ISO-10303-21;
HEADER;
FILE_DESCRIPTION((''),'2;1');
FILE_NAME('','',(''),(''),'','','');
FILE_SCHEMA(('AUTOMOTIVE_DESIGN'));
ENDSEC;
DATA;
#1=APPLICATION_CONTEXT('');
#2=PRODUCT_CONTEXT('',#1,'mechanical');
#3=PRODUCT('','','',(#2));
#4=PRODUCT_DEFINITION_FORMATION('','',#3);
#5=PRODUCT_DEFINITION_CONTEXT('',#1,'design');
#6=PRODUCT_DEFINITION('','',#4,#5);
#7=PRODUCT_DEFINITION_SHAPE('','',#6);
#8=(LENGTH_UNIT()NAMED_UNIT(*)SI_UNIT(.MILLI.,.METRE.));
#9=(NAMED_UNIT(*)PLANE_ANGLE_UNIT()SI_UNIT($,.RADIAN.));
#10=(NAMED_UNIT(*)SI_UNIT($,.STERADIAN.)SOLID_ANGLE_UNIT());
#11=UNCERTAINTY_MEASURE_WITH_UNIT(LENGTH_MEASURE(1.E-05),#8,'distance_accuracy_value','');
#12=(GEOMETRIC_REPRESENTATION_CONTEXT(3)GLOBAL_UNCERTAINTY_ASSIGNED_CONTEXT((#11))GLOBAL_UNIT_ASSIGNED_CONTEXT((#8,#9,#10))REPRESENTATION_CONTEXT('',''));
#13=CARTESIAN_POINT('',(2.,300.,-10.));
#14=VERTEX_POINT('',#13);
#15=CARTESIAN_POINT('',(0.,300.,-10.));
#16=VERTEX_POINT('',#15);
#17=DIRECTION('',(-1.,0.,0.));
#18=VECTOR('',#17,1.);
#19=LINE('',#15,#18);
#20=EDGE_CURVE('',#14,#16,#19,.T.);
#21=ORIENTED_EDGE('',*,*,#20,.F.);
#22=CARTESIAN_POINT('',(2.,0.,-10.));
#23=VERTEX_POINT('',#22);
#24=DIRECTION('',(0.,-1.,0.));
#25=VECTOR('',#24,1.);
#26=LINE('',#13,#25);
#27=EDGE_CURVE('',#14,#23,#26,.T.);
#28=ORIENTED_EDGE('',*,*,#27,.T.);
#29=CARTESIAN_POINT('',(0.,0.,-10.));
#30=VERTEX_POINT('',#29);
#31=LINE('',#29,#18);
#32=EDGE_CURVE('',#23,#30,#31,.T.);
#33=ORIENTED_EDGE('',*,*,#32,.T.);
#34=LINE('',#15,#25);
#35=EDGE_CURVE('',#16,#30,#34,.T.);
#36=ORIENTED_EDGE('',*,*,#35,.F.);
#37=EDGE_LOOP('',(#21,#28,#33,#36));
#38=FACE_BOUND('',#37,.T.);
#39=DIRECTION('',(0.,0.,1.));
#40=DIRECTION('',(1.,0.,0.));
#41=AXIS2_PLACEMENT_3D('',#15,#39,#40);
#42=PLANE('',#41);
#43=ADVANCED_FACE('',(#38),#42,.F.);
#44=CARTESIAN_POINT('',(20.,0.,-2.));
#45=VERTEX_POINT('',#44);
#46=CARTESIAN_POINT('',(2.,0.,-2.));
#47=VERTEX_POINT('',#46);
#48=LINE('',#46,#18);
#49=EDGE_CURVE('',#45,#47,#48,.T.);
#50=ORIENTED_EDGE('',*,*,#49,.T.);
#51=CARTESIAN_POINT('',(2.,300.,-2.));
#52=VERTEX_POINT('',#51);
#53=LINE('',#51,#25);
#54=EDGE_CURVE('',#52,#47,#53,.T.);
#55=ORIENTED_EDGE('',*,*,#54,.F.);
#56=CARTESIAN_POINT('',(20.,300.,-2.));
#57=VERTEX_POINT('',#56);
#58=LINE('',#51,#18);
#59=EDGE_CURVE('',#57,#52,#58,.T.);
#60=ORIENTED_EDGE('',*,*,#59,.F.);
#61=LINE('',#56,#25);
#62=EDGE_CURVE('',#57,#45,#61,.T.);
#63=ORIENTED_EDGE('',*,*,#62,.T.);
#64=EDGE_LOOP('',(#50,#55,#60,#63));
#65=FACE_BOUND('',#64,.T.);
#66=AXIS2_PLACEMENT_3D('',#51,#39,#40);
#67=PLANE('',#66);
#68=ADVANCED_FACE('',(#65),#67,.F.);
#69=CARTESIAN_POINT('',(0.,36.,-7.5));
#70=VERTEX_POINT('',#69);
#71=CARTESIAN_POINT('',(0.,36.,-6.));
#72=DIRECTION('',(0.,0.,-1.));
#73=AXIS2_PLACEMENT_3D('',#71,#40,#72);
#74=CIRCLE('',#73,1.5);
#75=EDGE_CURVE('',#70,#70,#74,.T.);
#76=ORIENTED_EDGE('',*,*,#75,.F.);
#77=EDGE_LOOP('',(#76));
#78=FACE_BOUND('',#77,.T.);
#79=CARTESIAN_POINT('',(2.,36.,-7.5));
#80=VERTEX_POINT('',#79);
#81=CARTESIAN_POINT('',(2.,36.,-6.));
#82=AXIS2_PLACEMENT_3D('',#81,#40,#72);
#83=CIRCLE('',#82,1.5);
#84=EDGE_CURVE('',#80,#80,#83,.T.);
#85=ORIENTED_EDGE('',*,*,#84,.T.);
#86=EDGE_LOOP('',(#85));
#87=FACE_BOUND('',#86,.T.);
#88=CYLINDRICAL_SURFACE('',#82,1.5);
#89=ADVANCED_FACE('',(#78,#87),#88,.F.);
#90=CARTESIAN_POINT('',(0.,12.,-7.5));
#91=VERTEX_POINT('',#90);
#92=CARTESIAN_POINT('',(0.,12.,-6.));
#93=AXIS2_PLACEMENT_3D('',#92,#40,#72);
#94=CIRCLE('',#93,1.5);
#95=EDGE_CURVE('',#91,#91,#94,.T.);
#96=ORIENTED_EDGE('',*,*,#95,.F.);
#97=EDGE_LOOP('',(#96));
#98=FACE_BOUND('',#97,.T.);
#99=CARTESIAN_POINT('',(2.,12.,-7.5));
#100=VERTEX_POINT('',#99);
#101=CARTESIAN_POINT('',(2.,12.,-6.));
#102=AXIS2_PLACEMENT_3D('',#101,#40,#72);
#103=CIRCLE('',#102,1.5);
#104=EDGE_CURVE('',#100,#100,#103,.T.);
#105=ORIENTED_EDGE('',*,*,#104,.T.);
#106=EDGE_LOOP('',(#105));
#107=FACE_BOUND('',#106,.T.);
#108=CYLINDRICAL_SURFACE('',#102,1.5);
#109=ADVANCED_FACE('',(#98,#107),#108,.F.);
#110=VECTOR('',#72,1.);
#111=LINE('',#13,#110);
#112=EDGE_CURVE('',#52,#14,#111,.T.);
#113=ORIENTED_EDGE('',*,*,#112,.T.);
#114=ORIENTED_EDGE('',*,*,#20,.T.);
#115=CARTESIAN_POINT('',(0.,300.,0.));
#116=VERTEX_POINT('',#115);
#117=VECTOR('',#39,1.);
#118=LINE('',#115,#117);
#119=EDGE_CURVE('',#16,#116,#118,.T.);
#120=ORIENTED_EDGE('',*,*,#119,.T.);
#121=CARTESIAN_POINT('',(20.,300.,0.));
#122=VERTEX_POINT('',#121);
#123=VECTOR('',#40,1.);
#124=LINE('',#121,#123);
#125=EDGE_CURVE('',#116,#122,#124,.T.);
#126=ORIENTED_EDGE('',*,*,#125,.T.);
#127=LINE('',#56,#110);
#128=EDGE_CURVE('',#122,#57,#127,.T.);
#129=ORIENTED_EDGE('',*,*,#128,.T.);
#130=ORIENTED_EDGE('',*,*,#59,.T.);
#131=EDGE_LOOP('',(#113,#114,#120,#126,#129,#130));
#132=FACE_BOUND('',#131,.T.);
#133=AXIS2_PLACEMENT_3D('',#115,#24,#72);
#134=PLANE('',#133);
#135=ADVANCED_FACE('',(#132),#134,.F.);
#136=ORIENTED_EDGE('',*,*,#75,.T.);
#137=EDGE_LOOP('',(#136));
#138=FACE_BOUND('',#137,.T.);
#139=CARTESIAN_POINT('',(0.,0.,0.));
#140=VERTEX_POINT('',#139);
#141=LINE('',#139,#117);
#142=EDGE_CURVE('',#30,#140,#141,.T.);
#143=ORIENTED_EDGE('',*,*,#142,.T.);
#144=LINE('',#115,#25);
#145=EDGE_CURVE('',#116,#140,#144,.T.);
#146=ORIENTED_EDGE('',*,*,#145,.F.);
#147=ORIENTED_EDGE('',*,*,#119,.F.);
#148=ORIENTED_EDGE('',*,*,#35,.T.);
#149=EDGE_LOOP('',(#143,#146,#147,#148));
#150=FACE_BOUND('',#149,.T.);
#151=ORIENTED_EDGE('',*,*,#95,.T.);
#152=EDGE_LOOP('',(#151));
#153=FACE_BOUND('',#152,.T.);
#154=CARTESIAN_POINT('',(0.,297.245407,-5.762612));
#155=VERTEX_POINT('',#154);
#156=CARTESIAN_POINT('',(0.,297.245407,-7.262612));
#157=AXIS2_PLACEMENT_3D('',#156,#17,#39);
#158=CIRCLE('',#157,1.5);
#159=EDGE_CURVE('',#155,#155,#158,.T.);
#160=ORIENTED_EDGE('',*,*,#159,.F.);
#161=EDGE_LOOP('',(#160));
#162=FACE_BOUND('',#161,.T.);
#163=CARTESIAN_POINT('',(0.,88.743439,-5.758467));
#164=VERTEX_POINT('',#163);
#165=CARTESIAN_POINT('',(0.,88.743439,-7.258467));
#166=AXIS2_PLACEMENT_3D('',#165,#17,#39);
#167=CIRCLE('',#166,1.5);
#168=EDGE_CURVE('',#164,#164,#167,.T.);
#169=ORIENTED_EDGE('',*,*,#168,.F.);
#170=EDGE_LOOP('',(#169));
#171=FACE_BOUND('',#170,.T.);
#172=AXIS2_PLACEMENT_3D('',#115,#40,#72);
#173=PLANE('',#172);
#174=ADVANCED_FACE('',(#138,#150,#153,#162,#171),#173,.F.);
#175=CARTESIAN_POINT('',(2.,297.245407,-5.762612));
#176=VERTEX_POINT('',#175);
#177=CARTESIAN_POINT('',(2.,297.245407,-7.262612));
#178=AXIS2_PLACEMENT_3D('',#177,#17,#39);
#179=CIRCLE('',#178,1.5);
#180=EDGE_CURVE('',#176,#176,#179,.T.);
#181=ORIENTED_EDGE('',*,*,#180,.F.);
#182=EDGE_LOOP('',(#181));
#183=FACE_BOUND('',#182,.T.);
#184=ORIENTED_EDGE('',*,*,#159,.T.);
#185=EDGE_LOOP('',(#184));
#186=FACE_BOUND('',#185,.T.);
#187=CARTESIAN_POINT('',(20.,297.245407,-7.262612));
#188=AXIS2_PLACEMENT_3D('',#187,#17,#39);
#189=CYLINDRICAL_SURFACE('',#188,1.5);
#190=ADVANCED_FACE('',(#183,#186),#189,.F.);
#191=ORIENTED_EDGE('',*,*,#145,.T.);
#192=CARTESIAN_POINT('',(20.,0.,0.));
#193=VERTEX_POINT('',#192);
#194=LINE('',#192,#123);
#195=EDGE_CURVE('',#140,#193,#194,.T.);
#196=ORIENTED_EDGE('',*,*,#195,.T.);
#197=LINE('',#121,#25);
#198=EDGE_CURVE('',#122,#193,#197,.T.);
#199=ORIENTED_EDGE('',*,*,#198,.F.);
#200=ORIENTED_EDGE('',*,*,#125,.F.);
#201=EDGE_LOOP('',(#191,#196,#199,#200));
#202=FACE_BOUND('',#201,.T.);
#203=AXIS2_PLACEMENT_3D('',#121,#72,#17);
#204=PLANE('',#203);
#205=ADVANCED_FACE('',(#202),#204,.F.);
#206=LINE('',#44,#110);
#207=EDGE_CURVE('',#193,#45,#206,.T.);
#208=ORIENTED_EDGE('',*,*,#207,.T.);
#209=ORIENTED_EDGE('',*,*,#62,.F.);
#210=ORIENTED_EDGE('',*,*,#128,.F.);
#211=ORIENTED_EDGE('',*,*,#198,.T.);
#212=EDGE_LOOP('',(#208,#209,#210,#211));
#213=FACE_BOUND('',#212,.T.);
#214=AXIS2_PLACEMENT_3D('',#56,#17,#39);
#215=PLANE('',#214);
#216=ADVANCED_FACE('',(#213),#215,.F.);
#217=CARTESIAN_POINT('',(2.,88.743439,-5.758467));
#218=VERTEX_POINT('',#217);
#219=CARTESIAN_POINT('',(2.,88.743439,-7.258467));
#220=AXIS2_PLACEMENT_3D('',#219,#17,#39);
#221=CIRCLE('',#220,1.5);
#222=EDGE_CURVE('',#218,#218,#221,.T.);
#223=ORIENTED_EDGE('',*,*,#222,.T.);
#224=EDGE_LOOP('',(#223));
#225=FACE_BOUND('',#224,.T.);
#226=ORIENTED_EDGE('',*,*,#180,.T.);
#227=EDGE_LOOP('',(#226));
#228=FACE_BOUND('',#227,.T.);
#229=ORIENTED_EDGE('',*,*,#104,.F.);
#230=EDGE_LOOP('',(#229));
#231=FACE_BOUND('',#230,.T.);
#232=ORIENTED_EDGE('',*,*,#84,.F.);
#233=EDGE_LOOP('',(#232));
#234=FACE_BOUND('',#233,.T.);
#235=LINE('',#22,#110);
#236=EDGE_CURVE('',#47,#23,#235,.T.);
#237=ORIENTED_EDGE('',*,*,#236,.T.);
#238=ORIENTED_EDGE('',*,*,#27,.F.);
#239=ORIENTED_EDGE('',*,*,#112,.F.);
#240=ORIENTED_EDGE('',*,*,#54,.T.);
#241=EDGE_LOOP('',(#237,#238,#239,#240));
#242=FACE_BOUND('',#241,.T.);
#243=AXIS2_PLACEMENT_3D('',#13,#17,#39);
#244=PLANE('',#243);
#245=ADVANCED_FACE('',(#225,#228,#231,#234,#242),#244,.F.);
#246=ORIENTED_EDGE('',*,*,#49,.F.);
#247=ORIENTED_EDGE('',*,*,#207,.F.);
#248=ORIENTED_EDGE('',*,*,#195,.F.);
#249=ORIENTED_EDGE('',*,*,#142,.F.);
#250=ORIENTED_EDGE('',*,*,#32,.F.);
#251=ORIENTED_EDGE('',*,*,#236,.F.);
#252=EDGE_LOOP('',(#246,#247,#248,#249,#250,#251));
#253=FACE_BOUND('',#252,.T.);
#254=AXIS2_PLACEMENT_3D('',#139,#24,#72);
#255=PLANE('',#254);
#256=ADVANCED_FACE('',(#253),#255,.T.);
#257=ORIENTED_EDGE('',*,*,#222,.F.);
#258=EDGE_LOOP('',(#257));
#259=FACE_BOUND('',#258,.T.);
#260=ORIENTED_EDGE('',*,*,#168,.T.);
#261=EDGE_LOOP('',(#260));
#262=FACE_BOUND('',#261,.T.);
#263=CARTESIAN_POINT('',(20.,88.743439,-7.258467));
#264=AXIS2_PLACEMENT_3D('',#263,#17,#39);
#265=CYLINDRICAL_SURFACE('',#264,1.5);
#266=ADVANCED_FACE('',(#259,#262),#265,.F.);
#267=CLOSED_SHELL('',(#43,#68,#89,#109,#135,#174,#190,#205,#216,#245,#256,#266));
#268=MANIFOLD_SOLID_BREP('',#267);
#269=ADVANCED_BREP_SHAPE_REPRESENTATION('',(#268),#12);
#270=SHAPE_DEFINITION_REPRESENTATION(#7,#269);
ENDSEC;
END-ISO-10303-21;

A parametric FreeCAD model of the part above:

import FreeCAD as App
import Part
import Sketcher

V = App.Vector
Q = App.Units.Quantity

doc = App.newDocument("Part")
body = doc.addObject("PartDesign::Body", "Body")

# Sketch on XZ plane
sketch1 = doc.addObject("Sketcher::SketchObject", "Sketch")
body.addObject(sketch1)
sketch1.AttachmentSupport = (doc.XZ_Plane, [""])
sketch1.MapMode = "FlatFace"
sketch1.addGeometry(Part.LineSegment(V(0, -10, 0), V(0, 0, 0)), False)
sketch1.addGeometry(Part.LineSegment(V(0, 0, 0), V(20, 0, 0)), False)
sketch1.addGeometry(Part.LineSegment(V(20, 0, 0), V(20, -2, 0)), False)
sketch1.addGeometry(Part.LineSegment(V(20, -2, 0), V(2, -2, 0)), False)
sketch1.addGeometry(Part.LineSegment(V(2, -2, 0), V(2, -10, 0)), False)
sketch1.addGeometry(Part.LineSegment(V(2, -10, 0), V(0, -10, 0)), False)
sketch1.addConstraint(Sketcher.Constraint("Coincident", 0, 2, 1, 1))
sketch1.addConstraint(Sketcher.Constraint("Coincident", 1, 2, 2, 1))
sketch1.addConstraint(Sketcher.Constraint("Coincident", 2, 2, 3, 1))
sketch1.addConstraint(Sketcher.Constraint("Coincident", 3, 2, 4, 1))
sketch1.addConstraint(Sketcher.Constraint("Coincident", 4, 2, 5, 1))
sketch1.addConstraint(Sketcher.Constraint("Coincident", 5, 2, 0, 1))
sketch1.addConstraint(Sketcher.Constraint("Vertical", 0))
sketch1.addConstraint(Sketcher.Constraint("Horizontal", 1))
sketch1.addConstraint(Sketcher.Constraint("Vertical", 2))
sketch1.addConstraint(Sketcher.Constraint("Horizontal", 3))
sketch1.addConstraint(Sketcher.Constraint("Vertical", 4))
sketch1.addConstraint(Sketcher.Constraint("Horizontal", 5))
sketch1.addConstraint(Sketcher.Constraint("Coincident", 0, 2, -1, 1))
sketch1.addConstraint(Sketcher.Constraint("Equal", 5, 2))
sketch1.addConstraint(Sketcher.Constraint("DistanceX", 1, 1, 1, 2, Q("20 mm")))
sketch1.addConstraint(Sketcher.Constraint("DistanceX", 3, 2, 3, 1, Q("18 mm")))
sketch1.addConstraint(Sketcher.Constraint("DistanceY", 0, 1, 0, 2, Q("10 mm")))
pad1 = doc.addObject("PartDesign::Pad", "Pad")
body.addObject(pad1)
pad1.Profile = sketch1
pad1.Length = 300
pad1.Reversed = True

# Sketch on YZ plane
sketch2 = doc.addObject("Sketcher::SketchObject", "Sketch001")
body.addObject(sketch2)
sketch2.AttachmentSupport = (doc.YZ_Plane, [""])
sketch2.MapMode = "FlatFace"
sketch2.addGeometry(Part.Circle(V(297.2, -7.3, 0), V(0, 0, 1), 1.5), False)
sketch2.addGeometry(Part.Circle(V(88.7, -7.3, 0), V(0, 0, 1), 1.5), False)
sketch2.addConstraint(Sketcher.Constraint("Equal", 0, 1))
sketch2.addConstraint(Sketcher.Constraint("Diameter", 0, Q("3 mm")))
sketch2.addConstraint(Sketcher.Constraint("DistanceX", -1, 1, 1, 3, Q("88.743439 mm")))
sketch2.addConstraint(Sketcher.Constraint("DistanceX", 1, 3, 0, 3, Q("208.501968 mm")))
sketch2.addConstraint(Sketcher.Constraint("DistanceY", 0, 3, -1, 1, Q("7.262612 mm")))
sketch2.addConstraint(Sketcher.Constraint("DistanceY", 1, 3, -1, 1, Q("7.258467 mm")))
pocket1 = doc.addObject("PartDesign::Pocket", "Pocket")
body.addObject(pocket1)
pocket1.Profile = sketch2
pocket1.Type = "ThroughAll"
pocket1.Reversed = True

# Sketch on YZ plane
sketch3 = doc.addObject("Sketcher::SketchObject", "Sketch002")
body.addObject(sketch3)
sketch3.AttachmentSupport = (doc.YZ_Plane, [""])
sketch3.MapMode = "FlatFace"
sketch3.AttachmentOffset = App.Placement(V(0, 0, 2), App.Rotation())
sketch3.addGeometry(Part.Circle(V(36, -6, 0), V(0, 0, 1), 1.5), False)
sketch3.addGeometry(Part.Circle(V(12, -6, 0), V(0, 0, 1), 1.5), False)
sketch3.addConstraint(Sketcher.Constraint("Equal", 0, 1))
sketch3.addConstraint(Sketcher.Constraint("Horizontal", 0, 3, 1, 3))
sketch3.addConstraint(Sketcher.Constraint("Diameter", 0, Q("3 mm")))
sketch3.addConstraint(Sketcher.Constraint("DistanceX", -1, 1, 0, 3, Q("36 mm")))
sketch3.addConstraint(Sketcher.Constraint("DistanceY", 0, 3, -1, 1, Q("6 mm")))
sketch3.addConstraint(Sketcher.Constraint("DistanceX", -1, 1, 1, 3, Q("12 mm")))
doc.recompute()
hole = doc.addObject("PartDesign::Hole", "Hole")
body.addObject(hole)
hole.Profile = sketch3
hole.ThreadType = "None"
hole.Diameter = 3
hole.DepthType = "ThroughAll"

doc.recompute()
